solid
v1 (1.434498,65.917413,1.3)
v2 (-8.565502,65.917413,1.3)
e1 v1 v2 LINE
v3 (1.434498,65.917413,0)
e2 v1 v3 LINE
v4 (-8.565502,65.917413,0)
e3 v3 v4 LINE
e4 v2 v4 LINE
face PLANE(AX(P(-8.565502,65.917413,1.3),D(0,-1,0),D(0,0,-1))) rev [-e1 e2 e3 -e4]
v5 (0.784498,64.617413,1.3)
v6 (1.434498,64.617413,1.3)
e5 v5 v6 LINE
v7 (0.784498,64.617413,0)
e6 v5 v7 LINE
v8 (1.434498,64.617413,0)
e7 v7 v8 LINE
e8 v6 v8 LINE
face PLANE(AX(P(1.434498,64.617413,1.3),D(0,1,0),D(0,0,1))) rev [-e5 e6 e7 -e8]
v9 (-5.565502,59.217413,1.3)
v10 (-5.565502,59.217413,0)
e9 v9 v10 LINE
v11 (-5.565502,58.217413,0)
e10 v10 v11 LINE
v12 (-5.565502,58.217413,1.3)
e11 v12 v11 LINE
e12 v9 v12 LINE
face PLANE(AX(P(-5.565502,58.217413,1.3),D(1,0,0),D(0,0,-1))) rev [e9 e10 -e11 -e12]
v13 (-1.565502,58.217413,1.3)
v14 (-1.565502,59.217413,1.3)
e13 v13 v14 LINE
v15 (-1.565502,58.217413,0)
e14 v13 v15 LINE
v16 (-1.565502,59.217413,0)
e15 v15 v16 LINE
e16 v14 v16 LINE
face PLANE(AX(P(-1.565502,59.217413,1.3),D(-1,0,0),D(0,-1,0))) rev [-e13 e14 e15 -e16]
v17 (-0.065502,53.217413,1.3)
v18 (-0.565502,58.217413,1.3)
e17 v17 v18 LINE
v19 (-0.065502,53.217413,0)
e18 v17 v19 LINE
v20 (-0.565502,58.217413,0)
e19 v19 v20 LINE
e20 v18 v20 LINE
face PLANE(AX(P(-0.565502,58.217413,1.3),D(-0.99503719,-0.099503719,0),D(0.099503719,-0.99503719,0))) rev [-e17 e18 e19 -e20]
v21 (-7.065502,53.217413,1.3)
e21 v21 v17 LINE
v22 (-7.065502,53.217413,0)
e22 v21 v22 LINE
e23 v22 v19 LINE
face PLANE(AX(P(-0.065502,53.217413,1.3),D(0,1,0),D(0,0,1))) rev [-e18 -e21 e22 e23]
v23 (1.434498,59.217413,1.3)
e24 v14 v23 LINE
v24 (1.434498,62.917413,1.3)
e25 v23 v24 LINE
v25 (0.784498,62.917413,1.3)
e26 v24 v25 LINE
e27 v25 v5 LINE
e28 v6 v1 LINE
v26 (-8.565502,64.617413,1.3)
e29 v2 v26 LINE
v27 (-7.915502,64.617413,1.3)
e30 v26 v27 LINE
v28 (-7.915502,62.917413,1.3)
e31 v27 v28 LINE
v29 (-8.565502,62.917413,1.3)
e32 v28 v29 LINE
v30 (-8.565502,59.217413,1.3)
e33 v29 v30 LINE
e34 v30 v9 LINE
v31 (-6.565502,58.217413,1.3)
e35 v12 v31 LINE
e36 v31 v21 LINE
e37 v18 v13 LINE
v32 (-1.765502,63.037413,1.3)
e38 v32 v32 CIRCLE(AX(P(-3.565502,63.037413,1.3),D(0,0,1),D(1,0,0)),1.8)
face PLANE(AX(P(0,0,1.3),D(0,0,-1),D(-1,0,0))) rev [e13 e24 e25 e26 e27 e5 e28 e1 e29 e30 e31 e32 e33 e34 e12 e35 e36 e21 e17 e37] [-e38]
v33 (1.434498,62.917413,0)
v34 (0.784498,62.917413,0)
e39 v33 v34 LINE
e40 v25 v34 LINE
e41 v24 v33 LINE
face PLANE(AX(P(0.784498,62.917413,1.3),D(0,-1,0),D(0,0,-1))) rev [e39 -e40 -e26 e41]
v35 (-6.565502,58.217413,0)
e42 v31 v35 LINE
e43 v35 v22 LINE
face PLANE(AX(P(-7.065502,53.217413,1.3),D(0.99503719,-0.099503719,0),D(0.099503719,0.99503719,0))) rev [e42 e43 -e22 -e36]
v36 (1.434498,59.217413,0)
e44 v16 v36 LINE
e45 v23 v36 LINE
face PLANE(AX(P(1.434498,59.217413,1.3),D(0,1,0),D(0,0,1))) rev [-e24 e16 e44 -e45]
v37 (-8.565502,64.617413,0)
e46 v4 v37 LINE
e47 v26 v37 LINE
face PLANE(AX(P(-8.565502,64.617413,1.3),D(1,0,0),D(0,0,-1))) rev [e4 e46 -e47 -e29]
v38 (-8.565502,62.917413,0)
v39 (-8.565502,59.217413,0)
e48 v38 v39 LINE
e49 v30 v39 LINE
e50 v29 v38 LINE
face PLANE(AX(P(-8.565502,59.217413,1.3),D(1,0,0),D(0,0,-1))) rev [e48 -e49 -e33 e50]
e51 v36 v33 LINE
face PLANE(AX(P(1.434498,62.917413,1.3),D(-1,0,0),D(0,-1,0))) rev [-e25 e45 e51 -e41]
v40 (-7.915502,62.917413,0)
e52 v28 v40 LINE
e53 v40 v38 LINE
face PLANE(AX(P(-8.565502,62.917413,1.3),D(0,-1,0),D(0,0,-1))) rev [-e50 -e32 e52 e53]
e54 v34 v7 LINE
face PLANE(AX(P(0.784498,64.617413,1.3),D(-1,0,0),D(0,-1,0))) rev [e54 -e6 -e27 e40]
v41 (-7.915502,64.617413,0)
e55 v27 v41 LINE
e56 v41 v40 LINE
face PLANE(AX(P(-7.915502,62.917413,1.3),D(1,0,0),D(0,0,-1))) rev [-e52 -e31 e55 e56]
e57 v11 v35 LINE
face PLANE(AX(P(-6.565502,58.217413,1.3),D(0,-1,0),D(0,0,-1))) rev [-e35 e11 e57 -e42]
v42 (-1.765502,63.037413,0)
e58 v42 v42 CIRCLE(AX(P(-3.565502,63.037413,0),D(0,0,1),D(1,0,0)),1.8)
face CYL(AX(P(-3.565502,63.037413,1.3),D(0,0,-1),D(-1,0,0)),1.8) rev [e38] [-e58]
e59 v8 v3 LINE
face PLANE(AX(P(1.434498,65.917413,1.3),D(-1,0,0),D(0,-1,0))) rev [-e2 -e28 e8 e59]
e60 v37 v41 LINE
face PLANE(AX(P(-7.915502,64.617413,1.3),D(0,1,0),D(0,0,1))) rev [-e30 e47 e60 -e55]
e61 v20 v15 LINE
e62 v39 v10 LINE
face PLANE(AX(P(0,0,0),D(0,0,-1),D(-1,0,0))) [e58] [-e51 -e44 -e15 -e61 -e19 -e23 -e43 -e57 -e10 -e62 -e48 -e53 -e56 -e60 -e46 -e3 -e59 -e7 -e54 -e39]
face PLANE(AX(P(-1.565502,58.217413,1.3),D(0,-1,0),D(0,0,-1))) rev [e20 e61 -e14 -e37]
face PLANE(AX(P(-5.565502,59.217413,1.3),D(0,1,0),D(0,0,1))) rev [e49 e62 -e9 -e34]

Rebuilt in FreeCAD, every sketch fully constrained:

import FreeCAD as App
import Part
import Sketcher

doc = App.newDocument("Part")
params = doc.addObject("Spreadsheet::Sheet", "Params")
for row, (alias, value) in enumerate([
    ("sketch1_diameter", "3.6 mm"),
    ("sketch1_width", "10 mm"),
    ("sketch1_width2", "3 mm"),
    ("sketch1_width3", "1 mm"),
    ("sketch1_width4", "7 mm"),
    ("pad1_length", "1.3 mm"),
], start=1):
    params.set(f"A{row}", alias)
    params.set(f"B{row}", "=" + value)
    params.setAlias(f"B{row}", alias)

body = doc.addObject("PartDesign::Body", "Body")

# Sketch on XY plane
sketch1 = body.newObject("Sketcher::SketchObject", "Sketch")
sketch1.AttachmentSupport = (doc.getObject("XY_Plane"), [""])
sketch1.MapMode = "FlatFace"
sketch1.addGeometry(Part.LineSegment(App.Vector(1.4, 65.9, 0), App.Vector(-8.6, 65.9, 0)), False)
sketch1.addGeometry(Part.LineSegment(App.Vector(-8.6, 65.9, 0), App.Vector(-8.6, 64.6, 0)), False)
sketch1.addGeometry(Part.LineSegment(App.Vector(-8.6, 64.6, 0), App.Vector(-7.9, 64.6, 0)), False)
sketch1.addGeometry(Part.LineSegment(App.Vector(-7.9, 64.6, 0), App.Vector(-7.9, 62.9, 0)), False)
sketch1.addGeometry(Part.LineSegment(App.Vector(-7.9, 62.9, 0), App.Vector(-8.6, 62.9, 0)), False)
sketch1.addGeometry(Part.LineSegment(App.Vector(-8.6, 62.9, 0), App.Vector(-8.6, 59.2, 0)), False)
sketch1.addGeometry(Part.LineSegment(App.Vector(-8.6, 59.2, 0), App.Vector(-5.6, 59.2, 0)), False)
sketch1.addGeometry(Part.LineSegment(App.Vector(-5.6, 59.2, 0), App.Vector(-5.6, 58.2, 0)), False)
sketch1.addGeometry(Part.LineSegment(App.Vector(-5.6, 58.2, 0), App.Vector(-6.6, 58.2, 0)), False)
sketch1.addGeometry(Part.LineSegment(App.Vector(-6.6, 58.2, 0), App.Vector(-7.1, 53.2, 0)), False)
sketch1.addGeometry(Part.LineSegment(App.Vector(-7.1, 53.2, 0), App.Vector(-0.1, 53.2, 0)), False)
sketch1.addGeometry(Part.LineSegment(App.Vector(-0.1, 53.2, 0), App.Vector(-0.6, 58.2, 0)), False)
sketch1.addGeometry(Part.LineSegment(App.Vector(-0.6, 58.2, 0), App.Vector(-1.6, 58.2, 0)), False)
sketch1.addGeometry(Part.LineSegment(App.Vector(-1.6, 58.2, 0), App.Vector(-1.6, 59.2, 0)), False)
sketch1.addGeometry(Part.LineSegment(App.Vector(-1.6, 59.2, 0), App.Vector(1.4, 59.2, 0)), False)
sketch1.addGeometry(Part.LineSegment(App.Vector(1.4, 59.2, 0), App.Vector(1.4, 62.9, 0)), False)
sketch1.addGeometry(Part.LineSegment(App.Vector(1.4, 62.9, 0), App.Vector(0.8, 62.9, 0)), False)
sketch1.addGeometry(Part.LineSegment(App.Vector(0.8, 62.9, 0), App.Vector(0.8, 64.6, 0)), False)
sketch1.addGeometry(Part.LineSegment(App.Vector(0.8, 64.6, 0), App.Vector(1.4, 64.6, 0)), False)
sketch1.addGeometry(Part.LineSegment(App.Vector(1.4, 64.6, 0), App.Vector(1.4, 65.9, 0)), False)
sketch1.addGeometry(Part.Circle(App.Vector(-3.6, 63, 0), App.Vector(0, 0, 1), 1.8), False)
sketch1.addConstraint(Sketcher.Constraint("Coincident", 0, 2, 1, 1))
sketch1.addConstraint(Sketcher.Constraint("Coincident", 1, 2, 2, 1))
sketch1.addConstraint(Sketcher.Constraint("Coincident", 2, 2, 3, 1))
sketch1.addConstraint(Sketcher.Constraint("Coincident", 3, 2, 4, 1))
sketch1.addConstraint(Sketcher.Constraint("Coincident", 4, 2, 5, 1))
sketch1.addConstraint(Sketcher.Constraint("Coincident", 5, 2, 6, 1))
sketch1.addConstraint(Sketcher.Constraint("Coincident", 6, 2, 7, 1))
sketch1.addConstraint(Sketcher.Constraint("Coincident", 7, 2, 8, 1))
sketch1.addConstraint(Sketcher.Constraint("Coincident", 8, 2, 9, 1))
sketch1.addConstraint(Sketcher.Constraint("Coincident", 9, 2, 10, 1))
sketch1.addConstraint(Sketcher.Constraint("Coincident", 10, 2, 11, 1))
sketch1.addConstraint(Sketcher.Constraint("Coincident", 11, 2, 12, 1))
sketch1.addConstraint(Sketcher.Constraint("Coincident", 12, 2, 13, 1))
sketch1.addConstraint(Sketcher.Constraint("Coincident", 13, 2, 14, 1))
sketch1.addConstraint(Sketcher.Constraint("Coincident", 14, 2, 15, 1))
sketch1.addConstraint(Sketcher.Constraint("Coincident", 15, 2, 16, 1))
sketch1.addConstraint(Sketcher.Constraint("Coincident", 16, 2, 17, 1))
sketch1.addConstraint(Sketcher.Constraint("Coincident", 17, 2, 18, 1))
sketch1.addConstraint(Sketcher.Constraint("Coincident", 18, 2, 19, 1))
sketch1.addConstraint(Sketcher.Constraint("Coincident", 19, 2, 0, 1))
sketch1.addConstraint(Sketcher.Constraint("Horizontal", 0))
sketch1.addConstraint(Sketcher.Constraint("Vertical", 1))
sketch1.addConstraint(Sketcher.Constraint("Horizontal", 2))
sketch1.addConstraint(Sketcher.Constraint("Vertical", 3))
sketch1.addConstraint(Sketcher.Constraint("Horizontal", 4))
sketch1.addConstraint(Sketcher.Constraint("Vertical", 5))
sketch1.addConstraint(Sketcher.Constraint("Horizontal", 6))
sketch1.addConstraint(Sketcher.Constraint("Vertical", 7))
sketch1.addConstraint(Sketcher.Constraint("Horizontal", 8))
sketch1.addConstraint(Sketcher.Constraint("Horizontal", 10))
sketch1.addConstraint(Sketcher.Constraint("Horizontal", 12))
sketch1.addConstraint(Sketcher.Constraint("Vertical", 13))
sketch1.addConstraint(Sketcher.Constraint("Horizontal", 14))
sketch1.addConstraint(Sketcher.Constraint("Vertical", 15))
sketch1.addConstraint(Sketcher.Constraint("Horizontal", 16))
sketch1.addConstraint(Sketcher.Constraint("Vertical", 17))
sketch1.addConstraint(Sketcher.Constraint("Horizontal", 18))
sketch1.addConstraint(Sketcher.Constraint("Vertical", 19))
sketch1.addConstraint(Sketcher.Constraint("Horizontal", 8, 2, 11, 2))
sketch1.addConstraint(Sketcher.Constraint("Horizontal", 6, 2, 13, 2))
sketch1.addConstraint(Sketcher.Constraint("Horizontal", 4, 2, 15, 2))
sketch1.addConstraint(Sketcher.Constraint("Horizontal", 2, 2, 17, 2))
sketch1.addConstraint(Sketcher.Constraint("Vertical", 1, 2, 4, 2))
sketch1.addConstraint(Sketcher.Constraint("Vertical", 15, 2, 18, 2))
sketch1.addConstraint(Sketcher.Constraint("Equal", 8, 12))
sketch1.addConstraint(Sketcher.Constraint("Equal", 6, 14))
sketch1.addConstraint(Sketcher.Constraint("Equal", 4, 16))
sketch1.addConstraint(Sketcher.Constraint("Equal", 12, 7))
sketch1.addConstraint(Sketcher.Constraint("Equal", 9, 11))
sketch1.addConstraint(Sketcher.Constraint("Diameter", 20, 3.6))
sketch1.addConstraint(Sketcher.Constraint("DistanceX", 0, 2, 0, 1, 10.0))
sketch1.addConstraint(Sketcher.Constraint("DistanceX", 6, 1, 6, 2, 3.0))
sketch1.addConstraint(Sketcher.Constraint("DistanceX", 8, 2, 8, 1, 1.0))
sketch1.addConstraint(Sketcher.Constraint("DistanceX", 10, 1, 10, 2, 7.0))
sketch1.addConstraint(Sketcher.Constraint("DistanceY", 1, 2, 1, 1, 1.3))
sketch1.addConstraint(Sketcher.Constraint("DistanceY", 3, 2, 3, 1, 1.7))
sketch1.addConstraint(Sketcher.Constraint("DistanceY", 5, 2, 5, 1, 3.7))
sketch1.addConstraint(Sketcher.Constraint("DistanceX", 0, 2, 20, 3, 5.0))
sketch1.addConstraint(Sketcher.Constraint("DistanceY", 9, 2, 8, 2, 5.0))
sketch1.addConstraint(Sketcher.Constraint("DistanceX", 2, 1, 2, 2, 0.65))
sketch1.addConstraint(Sketcher.Constraint("DistanceY", 20, 3, 0, 2, 2.88))
sketch1.addConstraint(Sketcher.Constraint("DistanceX", 20, 3, -1, 1, 3.565502))
sketch1.addConstraint(Sketcher.Constraint("DistanceY", -1, 1, 20, 3, 63.037413))
sketch1.setExpression("Constraints[49]", "Params.sketch1_diameter")
sketch1.setExpression("Constraints[50]", "Params.sketch1_width")
sketch1.setExpression("Constraints[51]", "Params.sketch1_width2")
sketch1.setExpression("Constraints[52]", "Params.sketch1_width3")
sketch1.setExpression("Constraints[53]", "Params.sketch1_width4")
pad1 = body.newObject("PartDesign::Pad", "Pad")
pad1.Profile = sketch1
pad1.setExpression("Length", "Params.pad1_length")

doc.recompute()
